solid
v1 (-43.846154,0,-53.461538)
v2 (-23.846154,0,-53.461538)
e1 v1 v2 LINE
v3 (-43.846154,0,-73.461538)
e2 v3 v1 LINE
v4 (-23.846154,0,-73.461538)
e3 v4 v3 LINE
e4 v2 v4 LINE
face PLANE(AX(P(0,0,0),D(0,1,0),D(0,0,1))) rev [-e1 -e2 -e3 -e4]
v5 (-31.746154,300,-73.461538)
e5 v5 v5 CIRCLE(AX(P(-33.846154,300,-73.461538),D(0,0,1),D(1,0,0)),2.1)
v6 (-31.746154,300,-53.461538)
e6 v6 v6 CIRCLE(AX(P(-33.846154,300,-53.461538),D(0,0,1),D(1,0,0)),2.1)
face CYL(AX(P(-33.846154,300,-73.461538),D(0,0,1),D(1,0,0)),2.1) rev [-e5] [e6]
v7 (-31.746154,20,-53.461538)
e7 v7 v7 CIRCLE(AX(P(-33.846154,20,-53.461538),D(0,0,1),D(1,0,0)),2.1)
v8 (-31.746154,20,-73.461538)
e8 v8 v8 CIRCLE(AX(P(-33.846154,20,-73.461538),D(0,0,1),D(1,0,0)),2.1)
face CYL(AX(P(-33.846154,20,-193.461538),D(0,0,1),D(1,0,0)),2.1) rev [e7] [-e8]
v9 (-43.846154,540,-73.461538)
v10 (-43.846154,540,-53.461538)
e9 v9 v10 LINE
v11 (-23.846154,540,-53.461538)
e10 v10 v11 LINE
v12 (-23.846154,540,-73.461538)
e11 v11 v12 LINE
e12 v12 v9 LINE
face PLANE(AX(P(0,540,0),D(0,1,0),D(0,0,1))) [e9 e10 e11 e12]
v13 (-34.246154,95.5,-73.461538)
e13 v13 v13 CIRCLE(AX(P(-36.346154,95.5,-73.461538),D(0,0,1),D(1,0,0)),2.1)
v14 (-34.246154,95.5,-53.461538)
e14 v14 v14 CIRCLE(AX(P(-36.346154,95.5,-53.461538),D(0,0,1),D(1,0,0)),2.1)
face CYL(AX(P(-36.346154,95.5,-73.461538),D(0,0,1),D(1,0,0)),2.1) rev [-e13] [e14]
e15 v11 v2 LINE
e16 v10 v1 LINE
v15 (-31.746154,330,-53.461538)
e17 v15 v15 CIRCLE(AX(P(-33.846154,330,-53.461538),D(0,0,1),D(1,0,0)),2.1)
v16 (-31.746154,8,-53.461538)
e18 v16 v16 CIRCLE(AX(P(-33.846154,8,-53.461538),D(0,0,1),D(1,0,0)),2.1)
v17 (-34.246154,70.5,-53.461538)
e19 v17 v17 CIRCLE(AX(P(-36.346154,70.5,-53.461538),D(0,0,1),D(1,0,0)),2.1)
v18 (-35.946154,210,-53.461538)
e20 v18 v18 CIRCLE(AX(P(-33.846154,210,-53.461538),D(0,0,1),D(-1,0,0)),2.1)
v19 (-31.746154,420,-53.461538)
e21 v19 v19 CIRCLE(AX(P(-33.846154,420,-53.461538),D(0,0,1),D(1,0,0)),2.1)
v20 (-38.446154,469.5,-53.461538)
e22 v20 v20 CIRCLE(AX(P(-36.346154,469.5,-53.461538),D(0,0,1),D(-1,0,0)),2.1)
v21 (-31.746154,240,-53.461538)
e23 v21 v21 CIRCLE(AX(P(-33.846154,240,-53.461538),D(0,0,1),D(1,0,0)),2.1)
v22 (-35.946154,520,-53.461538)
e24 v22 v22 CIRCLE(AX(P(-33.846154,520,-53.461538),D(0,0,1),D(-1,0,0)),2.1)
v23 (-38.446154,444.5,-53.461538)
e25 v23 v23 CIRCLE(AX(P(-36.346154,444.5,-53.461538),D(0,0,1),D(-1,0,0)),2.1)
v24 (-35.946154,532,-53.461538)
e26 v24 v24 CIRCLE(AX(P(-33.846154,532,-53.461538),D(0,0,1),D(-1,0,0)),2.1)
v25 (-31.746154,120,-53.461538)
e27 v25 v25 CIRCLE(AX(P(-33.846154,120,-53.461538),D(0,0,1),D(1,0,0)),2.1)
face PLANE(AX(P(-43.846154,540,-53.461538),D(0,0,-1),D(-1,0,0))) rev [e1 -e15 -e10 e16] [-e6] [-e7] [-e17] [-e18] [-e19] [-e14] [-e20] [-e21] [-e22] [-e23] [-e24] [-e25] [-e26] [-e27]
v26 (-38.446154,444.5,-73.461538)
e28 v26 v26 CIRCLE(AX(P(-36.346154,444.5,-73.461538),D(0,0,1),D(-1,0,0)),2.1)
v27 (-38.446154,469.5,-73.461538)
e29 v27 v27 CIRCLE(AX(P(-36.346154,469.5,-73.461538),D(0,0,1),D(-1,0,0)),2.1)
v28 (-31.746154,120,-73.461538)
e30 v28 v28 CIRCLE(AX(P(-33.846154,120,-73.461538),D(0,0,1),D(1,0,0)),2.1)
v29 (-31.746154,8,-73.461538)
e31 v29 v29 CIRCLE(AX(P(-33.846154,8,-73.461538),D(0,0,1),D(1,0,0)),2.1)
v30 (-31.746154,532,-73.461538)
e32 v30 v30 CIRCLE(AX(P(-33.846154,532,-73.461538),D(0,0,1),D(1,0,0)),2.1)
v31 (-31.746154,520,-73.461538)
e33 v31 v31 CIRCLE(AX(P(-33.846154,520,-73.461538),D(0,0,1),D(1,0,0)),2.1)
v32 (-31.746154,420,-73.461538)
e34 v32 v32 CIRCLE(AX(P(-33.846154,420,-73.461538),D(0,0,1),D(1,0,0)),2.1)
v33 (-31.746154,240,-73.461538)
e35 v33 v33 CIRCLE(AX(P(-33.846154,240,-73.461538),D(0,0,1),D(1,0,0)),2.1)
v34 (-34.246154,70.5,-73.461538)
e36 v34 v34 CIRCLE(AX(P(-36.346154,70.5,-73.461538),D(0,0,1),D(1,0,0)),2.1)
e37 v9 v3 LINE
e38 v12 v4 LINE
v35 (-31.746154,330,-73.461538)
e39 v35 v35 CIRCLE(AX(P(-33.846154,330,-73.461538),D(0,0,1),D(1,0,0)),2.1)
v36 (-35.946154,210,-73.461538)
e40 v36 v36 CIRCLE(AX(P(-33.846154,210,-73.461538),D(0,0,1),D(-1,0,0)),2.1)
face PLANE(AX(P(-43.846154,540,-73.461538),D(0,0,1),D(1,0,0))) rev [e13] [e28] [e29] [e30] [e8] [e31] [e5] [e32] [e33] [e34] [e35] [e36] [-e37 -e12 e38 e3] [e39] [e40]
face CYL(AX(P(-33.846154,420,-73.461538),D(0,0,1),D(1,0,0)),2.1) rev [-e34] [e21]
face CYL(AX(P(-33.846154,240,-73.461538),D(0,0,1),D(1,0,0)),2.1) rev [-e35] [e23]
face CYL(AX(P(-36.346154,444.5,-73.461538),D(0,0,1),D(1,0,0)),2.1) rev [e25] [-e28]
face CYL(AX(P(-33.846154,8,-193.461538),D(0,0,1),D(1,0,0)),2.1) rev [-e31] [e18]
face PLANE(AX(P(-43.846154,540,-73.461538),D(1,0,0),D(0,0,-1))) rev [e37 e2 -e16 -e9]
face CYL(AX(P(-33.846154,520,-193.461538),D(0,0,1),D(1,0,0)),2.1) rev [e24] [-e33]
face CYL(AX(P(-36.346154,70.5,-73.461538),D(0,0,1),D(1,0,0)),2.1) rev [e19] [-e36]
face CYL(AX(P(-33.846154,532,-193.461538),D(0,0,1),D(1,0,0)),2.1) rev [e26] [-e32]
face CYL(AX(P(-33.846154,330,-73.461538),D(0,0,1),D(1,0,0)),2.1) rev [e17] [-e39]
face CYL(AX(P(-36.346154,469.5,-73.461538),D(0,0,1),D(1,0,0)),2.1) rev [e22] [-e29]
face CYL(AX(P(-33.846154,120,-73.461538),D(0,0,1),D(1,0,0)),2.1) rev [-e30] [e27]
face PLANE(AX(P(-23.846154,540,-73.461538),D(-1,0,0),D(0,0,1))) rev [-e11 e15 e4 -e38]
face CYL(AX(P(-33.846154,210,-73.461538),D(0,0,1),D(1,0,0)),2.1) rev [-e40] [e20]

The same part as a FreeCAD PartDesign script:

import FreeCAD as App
import Part
import Sketcher

V = App.Vector
Q = App.Units.Quantity

doc = App.newDocument("Part")
params = doc.addObject("Spreadsheet::Sheet", "Params")
for row, (alias, value) in enumerate([
    ("sketch1_width", "20 mm"),
    ("pad1_length", "540 mm"),
    ("sketch2_diameter", "4.2 mm"),
    ("sketch3_diameter", "4.2 mm"),
    ("sketch4_diameter", "4.2 mm"),
    ("pocket3_length", "140 mm"),
], start=1):
    params.set(f"A{row}", alias)
    params.set(f"B{row}", "=" + value)
    params.setAlias(f"B{row}", alias)

body = doc.addObject("PartDesign::Body", "Body")

# Sketch on XZ plane
sketch1 = body.newObject("Sketcher::SketchObject", "Sketch")
sketch1.AttachmentSupport = (doc.getObject("XZ_Plane"), [""])
sketch1.MapMode = "FlatFace"
sketch1.addGeometry([
    Part.LineSegment(V(-43.846154, -73.461538, 0), V(-43.846154, -53.461538, 0)),
    Part.LineSegment(V(-43.846154, -53.461538, 0), V(-23.846154, -53.461538, 0)),
    Part.LineSegment(V(-23.846154, -53.461538, 0), V(-23.846154, -73.461538, 0)),
    Part.LineSegment(V(-23.846154, -73.461538, 0), V(-43.846154, -73.461538, 0)),
], False)
sketch1.addConstraint([
    Sketcher.Constraint("Coincident", 0, 2, 1, 1),
    Sketcher.Constraint("Coincident", 1, 2, 2, 1),
    Sketcher.Constraint("Coincident", 2, 2, 3, 1),
    Sketcher.Constraint("Coincident", 3, 2, 0, 1),
    Sketcher.Constraint("Vertical", 0),
    Sketcher.Constraint("Horizontal", 1),
    Sketcher.Constraint("Vertical", 2),
    Sketcher.Constraint("Horizontal", 3),
    Sketcher.Constraint("Equal", 3, 0),
    Sketcher.Constraint("DistanceX", 1, 1, 1, 2, Q("20 mm")),
    Sketcher.Constraint("DistanceY", 0, 2, -1, 1, Q("53.461538 mm")),
    Sketcher.Constraint("DistanceX", 0, 2, -1, 1, Q("43.846154 mm")),
])
sketch1.setExpression("Constraints[9]", "Params.sketch1_width")
pad1 = body.newObject("PartDesign::Pad", "Pad")
pad1.Profile = sketch1
pad1.setExpression("Length", "Params.pad1_length")
pad1.Reversed = True

# Sketch on XY plane
sketch2 = body.newObject("Sketcher::SketchObject", "Sketch001")
sketch2.AttachmentSupport = (doc.getObject("XY_Plane"), [""])
sketch2.MapMode = "FlatFace"
sketch2.AttachmentOffset = App.Placement(V(0, 0, -53.461538), App.Rotation())
sketch2.addGeometry([
    Part.Circle(V(-33.846154, 330, 0), V(0, 0, 1), 2.1),  # 0
    Part.Circle(V(-33.846154, 210, 0), V(0, 0, 1), 2.1),  # 1
    Part.Circle(V(-33.846154, 420, 0), V(0, 0, 1), 2.1),  # 2
    Part.Circle(V(-33.846154, 300, 0), V(0, 0, 1), 2.1),  # 3
    Part.Circle(V(-33.846154, 240, 0), V(0, 0, 1), 2.1),  # 4
    Part.Circle(V(-33.846154, 120, 0), V(0, 0, 1), 2.1),  # 5
], False)
sketch2.addConstraint([
    Sketcher.Constraint("Equal", 0, 1),
    Sketcher.Constraint("Equal", 1, 2),
    Sketcher.Constraint("Equal", 2, 3),
    Sketcher.Constraint("Equal", 3, 4),
    Sketcher.Constraint("Equal", 4, 5),
    Sketcher.Constraint("Vertical", 0, 3, 1, 3),
    Sketcher.Constraint("Vertical", 1, 3, 2, 3),
    Sketcher.Constraint("Vertical", 2, 3, 3, 3),
    Sketcher.Constraint("Vertical", 3, 3, 4, 3),
    Sketcher.Constraint("Vertical", 4, 3, 5, 3),
    Sketcher.Constraint("Diameter", 0, Q("4.2 mm")),
    Sketcher.Constraint("DistanceY", -1, 1, 0, 3, Q("330 mm")),
    Sketcher.Constraint("DistanceY", -1, 1, 1, 3, Q("210 mm")),
    Sketcher.Constraint("DistanceY", -1, 1, 2, 3, Q("420 mm")),
    Sketcher.Constraint("DistanceY", -1, 1, 3, 3, Q("300 mm")),
    Sketcher.Constraint("DistanceY", -1, 1, 4, 3, Q("240 mm")),
    Sketcher.Constraint("DistanceY", -1, 1, 5, 3, Q("120 mm")),
    Sketcher.Constraint("DistanceX", 0, 3, -1, 1, Q("33.846154 mm")),
])
sketch2.setExpression("Constraints[10]", "Params.sketch2_diameter")
pocket1 = body.newObject("PartDesign::Pocket", "Pocket")
pocket1.Profile = sketch2
pocket1.Type = "ThroughAll"

# Sketch on XY plane
sketch3 = body.newObject("Sketcher::SketchObject", "Sketch002")
sketch3.AttachmentSupport = (doc.getObject("XY_Plane"), [""])
sketch3.MapMode = "FlatFace"
sketch3.AttachmentOffset = App.Placement(V(0, 0, -53.461538), App.Rotation())
sketch3.addGeometry([
    Part.Circle(V(-36.346154, 70.5, 0), V(0, 0, 1), 2.1),
    Part.Circle(V(-36.346154, 95.5, 0), V(0, 0, 1), 2.1),
    Part.Circle(V(-36.346154, 444.5, 0), V(0, 0, 1), 2.1),
    Part.Circle(V(-36.346154, 469.5, 0), V(0, 0, 1), 2.1),
], False)
sketch3.addConstraint([
    Sketcher.Constraint("Equal", 0, 1),
    Sketcher.Constraint("Equal", 1, 2),
    Sketcher.Constraint("Equal", 2, 3),
    Sketcher.Constraint("Vertical", 0, 3, 1, 3),
    Sketcher.Constraint("Vertical", 1, 3, 2, 3),
    Sketcher.Constraint("Vertical", 2, 3, 3, 3),
    Sketcher.Constraint("Diameter", 0, Q("4.2 mm")),
    Sketcher.Constraint("DistanceY", 0, 3, 1, 3, Q("25 mm")),
    Sketcher.Constraint("DistanceY", 1, 3, 2, 3, Q("349 mm")),
    Sketcher.Constraint("DistanceY", 2, 3, 3, 3, Q("25 mm")),
    Sketcher.Constraint("DistanceY", -1, 1, 0, 3, Q("70.5 mm")),
    Sketcher.Constraint("DistanceX", 0, 3, -1, 1, Q("36.346154 mm")),
])
sketch3.setExpression("Constraints[6]", "Params.sketch3_diameter")
pocket2 = body.newObject("PartDesign::Pocket", "Pocket001")
pocket2.Profile = sketch3
pocket2.Type = "ThroughAll"

# Sketch on XY plane
sketch4 = body.newObject("Sketcher::SketchObject", "Sketch003")
sketch4.AttachmentSupport = (doc.getObject("XY_Plane"), [""])
sketch4.MapMode = "FlatFace"
sketch4.AttachmentOffset = App.Placement(V(0, 0, -53.461538), App.Rotation())
sketch4.addGeometry([
    Part.Circle(V(-33.846154, 8, 0), V(0, 0, 1), 2.1),
    Part.Circle(V(-33.846154, 20, 0), V(0, 0, 1), 2.1),
    Part.Circle(V(-33.846154, 520, 0), V(0, 0, 1), 2.1),
    Part.Circle(V(-33.846154, 532, 0), V(0, 0, 1), 2.1),
], False)
sketch4.addConstraint([
    Sketcher.Constraint("Equal", 0, 1),
    Sketcher.Constraint("Equal", 1, 2),
    Sketcher.Constraint("Equal", 2, 3),
    Sketcher.Constraint("Vertical", 0, 3, 1, 3),
    Sketcher.Constraint("Vertical", 1, 3, 2, 3),
    Sketcher.Constraint("Vertical", 2, 3, 3, 3),
    Sketcher.Constraint("Diameter", 0, Q("4.2 mm")),
    Sketcher.Constraint("DistanceY", -1, 1, 0, 3, Q("8 mm")),
    Sketcher.Constraint("DistanceY", -1, 1, 1, 3, Q("20 mm")),
    Sketcher.Constraint("DistanceY", -1, 1, 2, 3, Q("520 mm")),
    Sketcher.Constraint("DistanceY", -1, 1, 3, 3, Q("532 mm")),
    Sketcher.Constraint("DistanceX", 0, 3, -1, 1, Q("33.846154 mm")),
])
sketch4.setExpression("Constraints[6]", "Params.sketch4_diameter")
pocket3 = body.newObject("PartDesign::Pocket", "Pocket002")
pocket3.Profile = sketch4
pocket3.setExpression("Length", "Params.pocket3_length")

doc.recompute()
